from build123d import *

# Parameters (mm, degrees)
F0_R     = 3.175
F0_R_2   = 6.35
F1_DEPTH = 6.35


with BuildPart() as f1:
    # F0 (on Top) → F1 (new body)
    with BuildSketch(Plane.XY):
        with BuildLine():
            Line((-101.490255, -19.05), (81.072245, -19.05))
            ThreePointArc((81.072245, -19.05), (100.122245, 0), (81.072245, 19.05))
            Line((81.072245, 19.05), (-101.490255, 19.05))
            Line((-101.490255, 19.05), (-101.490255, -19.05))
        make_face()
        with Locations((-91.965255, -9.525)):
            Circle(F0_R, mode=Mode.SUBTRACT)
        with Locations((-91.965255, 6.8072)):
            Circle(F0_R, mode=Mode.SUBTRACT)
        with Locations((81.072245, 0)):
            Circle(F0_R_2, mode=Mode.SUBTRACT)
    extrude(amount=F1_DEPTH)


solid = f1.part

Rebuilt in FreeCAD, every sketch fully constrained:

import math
import FreeCAD as App
import Part
import Sketcher
from FreeCAD import Vector
Q = App.Units.Quantity

doc = App.newDocument("Part")
body = doc.addObject("PartDesign::Body", "Body")

sketch1 = doc.addObject("Sketcher::SketchObject", "Sketch")
body.addObject(sketch1)
sketch1.AttachmentSupport = (doc.XY_Plane, [""])
sketch1.MapMode = "FlatFace"
sketch1.addGeometry([
    Part.LineSegment(Vector(-101.490255, -19.05, 0), Vector(81.072245, -19.05, 0)),
    Part.ArcOfCircle(Part.Circle(Vector(81.072245, 0, 0), Vector(0, 0, 1), 19.05), math.radians(-90), math.radians(90)),
    Part.LineSegment(Vector(81.072245, 19.05, 0), Vector(-101.490255, 19.05, 0)),
    Part.LineSegment(Vector(-101.490255, 19.05, 0), Vector(-101.490255, -19.05, 0)),
    Part.Circle(Vector(-91.965255, -9.525, 0), Vector(0, 0, 1), 3.175),
    Part.Circle(Vector(-91.965255, 6.8072, 0), Vector(0, 0, 1), 3.175),
    Part.Circle(Vector(81.072245, 0, 0), Vector(0, 0, 1), 6.35),
], False)
sketch1.addConstraint([
    Sketcher.Constraint("Tangent", 0, 2, 1, 1),
    Sketcher.Constraint("Tangent", 1, 2, 2, 1),
    Sketcher.Constraint("Coincident", 2, 2, 3, 1),
    Sketcher.Constraint("Coincident", 3, 2, 0, 1),
    Sketcher.Constraint("Horizontal", 0),
    Sketcher.Constraint("Horizontal", 2),
    Sketcher.Constraint("Vertical", 3),
    Sketcher.Constraint("Coincident", 6, 3, 1, 3),
    Sketcher.Constraint("Equal", 4, 5),
    Sketcher.Constraint("PointOnObject", 1, 3, -1),
    Sketcher.Constraint("Vertical", 4, 3, 5, 3),
    Sketcher.Constraint("Diameter", 6, Q("0.5 in")),
    Sketcher.Constraint("Diameter", 4, Q("0.25 in")),
    Sketcher.Constraint("Radius", 1, Q("0.75 in")),
    Sketcher.Constraint("DistanceX", 0, 1, 0, 2, Q("7.1875 in")),
    Sketcher.Constraint("DistanceY", 4, 3, -1, 1, Q("0.375 in")),
    Sketcher.Constraint("DistanceY", -1, 1, 5, 3, Q("0.268 in")),
    Sketcher.Constraint("DistanceX", 4, 3, 1, 3, Q("6.8125 in")),
    Sketcher.Constraint("DistanceX", -1, 1, 1, 3, Q("81.072245 mm")),
])
pad1 = doc.addObject("PartDesign::Pad", "Pad")
body.addObject(pad1)
pad1.Profile = sketch1
pad1.Length = Q("0.25 in")

doc.recompute()
